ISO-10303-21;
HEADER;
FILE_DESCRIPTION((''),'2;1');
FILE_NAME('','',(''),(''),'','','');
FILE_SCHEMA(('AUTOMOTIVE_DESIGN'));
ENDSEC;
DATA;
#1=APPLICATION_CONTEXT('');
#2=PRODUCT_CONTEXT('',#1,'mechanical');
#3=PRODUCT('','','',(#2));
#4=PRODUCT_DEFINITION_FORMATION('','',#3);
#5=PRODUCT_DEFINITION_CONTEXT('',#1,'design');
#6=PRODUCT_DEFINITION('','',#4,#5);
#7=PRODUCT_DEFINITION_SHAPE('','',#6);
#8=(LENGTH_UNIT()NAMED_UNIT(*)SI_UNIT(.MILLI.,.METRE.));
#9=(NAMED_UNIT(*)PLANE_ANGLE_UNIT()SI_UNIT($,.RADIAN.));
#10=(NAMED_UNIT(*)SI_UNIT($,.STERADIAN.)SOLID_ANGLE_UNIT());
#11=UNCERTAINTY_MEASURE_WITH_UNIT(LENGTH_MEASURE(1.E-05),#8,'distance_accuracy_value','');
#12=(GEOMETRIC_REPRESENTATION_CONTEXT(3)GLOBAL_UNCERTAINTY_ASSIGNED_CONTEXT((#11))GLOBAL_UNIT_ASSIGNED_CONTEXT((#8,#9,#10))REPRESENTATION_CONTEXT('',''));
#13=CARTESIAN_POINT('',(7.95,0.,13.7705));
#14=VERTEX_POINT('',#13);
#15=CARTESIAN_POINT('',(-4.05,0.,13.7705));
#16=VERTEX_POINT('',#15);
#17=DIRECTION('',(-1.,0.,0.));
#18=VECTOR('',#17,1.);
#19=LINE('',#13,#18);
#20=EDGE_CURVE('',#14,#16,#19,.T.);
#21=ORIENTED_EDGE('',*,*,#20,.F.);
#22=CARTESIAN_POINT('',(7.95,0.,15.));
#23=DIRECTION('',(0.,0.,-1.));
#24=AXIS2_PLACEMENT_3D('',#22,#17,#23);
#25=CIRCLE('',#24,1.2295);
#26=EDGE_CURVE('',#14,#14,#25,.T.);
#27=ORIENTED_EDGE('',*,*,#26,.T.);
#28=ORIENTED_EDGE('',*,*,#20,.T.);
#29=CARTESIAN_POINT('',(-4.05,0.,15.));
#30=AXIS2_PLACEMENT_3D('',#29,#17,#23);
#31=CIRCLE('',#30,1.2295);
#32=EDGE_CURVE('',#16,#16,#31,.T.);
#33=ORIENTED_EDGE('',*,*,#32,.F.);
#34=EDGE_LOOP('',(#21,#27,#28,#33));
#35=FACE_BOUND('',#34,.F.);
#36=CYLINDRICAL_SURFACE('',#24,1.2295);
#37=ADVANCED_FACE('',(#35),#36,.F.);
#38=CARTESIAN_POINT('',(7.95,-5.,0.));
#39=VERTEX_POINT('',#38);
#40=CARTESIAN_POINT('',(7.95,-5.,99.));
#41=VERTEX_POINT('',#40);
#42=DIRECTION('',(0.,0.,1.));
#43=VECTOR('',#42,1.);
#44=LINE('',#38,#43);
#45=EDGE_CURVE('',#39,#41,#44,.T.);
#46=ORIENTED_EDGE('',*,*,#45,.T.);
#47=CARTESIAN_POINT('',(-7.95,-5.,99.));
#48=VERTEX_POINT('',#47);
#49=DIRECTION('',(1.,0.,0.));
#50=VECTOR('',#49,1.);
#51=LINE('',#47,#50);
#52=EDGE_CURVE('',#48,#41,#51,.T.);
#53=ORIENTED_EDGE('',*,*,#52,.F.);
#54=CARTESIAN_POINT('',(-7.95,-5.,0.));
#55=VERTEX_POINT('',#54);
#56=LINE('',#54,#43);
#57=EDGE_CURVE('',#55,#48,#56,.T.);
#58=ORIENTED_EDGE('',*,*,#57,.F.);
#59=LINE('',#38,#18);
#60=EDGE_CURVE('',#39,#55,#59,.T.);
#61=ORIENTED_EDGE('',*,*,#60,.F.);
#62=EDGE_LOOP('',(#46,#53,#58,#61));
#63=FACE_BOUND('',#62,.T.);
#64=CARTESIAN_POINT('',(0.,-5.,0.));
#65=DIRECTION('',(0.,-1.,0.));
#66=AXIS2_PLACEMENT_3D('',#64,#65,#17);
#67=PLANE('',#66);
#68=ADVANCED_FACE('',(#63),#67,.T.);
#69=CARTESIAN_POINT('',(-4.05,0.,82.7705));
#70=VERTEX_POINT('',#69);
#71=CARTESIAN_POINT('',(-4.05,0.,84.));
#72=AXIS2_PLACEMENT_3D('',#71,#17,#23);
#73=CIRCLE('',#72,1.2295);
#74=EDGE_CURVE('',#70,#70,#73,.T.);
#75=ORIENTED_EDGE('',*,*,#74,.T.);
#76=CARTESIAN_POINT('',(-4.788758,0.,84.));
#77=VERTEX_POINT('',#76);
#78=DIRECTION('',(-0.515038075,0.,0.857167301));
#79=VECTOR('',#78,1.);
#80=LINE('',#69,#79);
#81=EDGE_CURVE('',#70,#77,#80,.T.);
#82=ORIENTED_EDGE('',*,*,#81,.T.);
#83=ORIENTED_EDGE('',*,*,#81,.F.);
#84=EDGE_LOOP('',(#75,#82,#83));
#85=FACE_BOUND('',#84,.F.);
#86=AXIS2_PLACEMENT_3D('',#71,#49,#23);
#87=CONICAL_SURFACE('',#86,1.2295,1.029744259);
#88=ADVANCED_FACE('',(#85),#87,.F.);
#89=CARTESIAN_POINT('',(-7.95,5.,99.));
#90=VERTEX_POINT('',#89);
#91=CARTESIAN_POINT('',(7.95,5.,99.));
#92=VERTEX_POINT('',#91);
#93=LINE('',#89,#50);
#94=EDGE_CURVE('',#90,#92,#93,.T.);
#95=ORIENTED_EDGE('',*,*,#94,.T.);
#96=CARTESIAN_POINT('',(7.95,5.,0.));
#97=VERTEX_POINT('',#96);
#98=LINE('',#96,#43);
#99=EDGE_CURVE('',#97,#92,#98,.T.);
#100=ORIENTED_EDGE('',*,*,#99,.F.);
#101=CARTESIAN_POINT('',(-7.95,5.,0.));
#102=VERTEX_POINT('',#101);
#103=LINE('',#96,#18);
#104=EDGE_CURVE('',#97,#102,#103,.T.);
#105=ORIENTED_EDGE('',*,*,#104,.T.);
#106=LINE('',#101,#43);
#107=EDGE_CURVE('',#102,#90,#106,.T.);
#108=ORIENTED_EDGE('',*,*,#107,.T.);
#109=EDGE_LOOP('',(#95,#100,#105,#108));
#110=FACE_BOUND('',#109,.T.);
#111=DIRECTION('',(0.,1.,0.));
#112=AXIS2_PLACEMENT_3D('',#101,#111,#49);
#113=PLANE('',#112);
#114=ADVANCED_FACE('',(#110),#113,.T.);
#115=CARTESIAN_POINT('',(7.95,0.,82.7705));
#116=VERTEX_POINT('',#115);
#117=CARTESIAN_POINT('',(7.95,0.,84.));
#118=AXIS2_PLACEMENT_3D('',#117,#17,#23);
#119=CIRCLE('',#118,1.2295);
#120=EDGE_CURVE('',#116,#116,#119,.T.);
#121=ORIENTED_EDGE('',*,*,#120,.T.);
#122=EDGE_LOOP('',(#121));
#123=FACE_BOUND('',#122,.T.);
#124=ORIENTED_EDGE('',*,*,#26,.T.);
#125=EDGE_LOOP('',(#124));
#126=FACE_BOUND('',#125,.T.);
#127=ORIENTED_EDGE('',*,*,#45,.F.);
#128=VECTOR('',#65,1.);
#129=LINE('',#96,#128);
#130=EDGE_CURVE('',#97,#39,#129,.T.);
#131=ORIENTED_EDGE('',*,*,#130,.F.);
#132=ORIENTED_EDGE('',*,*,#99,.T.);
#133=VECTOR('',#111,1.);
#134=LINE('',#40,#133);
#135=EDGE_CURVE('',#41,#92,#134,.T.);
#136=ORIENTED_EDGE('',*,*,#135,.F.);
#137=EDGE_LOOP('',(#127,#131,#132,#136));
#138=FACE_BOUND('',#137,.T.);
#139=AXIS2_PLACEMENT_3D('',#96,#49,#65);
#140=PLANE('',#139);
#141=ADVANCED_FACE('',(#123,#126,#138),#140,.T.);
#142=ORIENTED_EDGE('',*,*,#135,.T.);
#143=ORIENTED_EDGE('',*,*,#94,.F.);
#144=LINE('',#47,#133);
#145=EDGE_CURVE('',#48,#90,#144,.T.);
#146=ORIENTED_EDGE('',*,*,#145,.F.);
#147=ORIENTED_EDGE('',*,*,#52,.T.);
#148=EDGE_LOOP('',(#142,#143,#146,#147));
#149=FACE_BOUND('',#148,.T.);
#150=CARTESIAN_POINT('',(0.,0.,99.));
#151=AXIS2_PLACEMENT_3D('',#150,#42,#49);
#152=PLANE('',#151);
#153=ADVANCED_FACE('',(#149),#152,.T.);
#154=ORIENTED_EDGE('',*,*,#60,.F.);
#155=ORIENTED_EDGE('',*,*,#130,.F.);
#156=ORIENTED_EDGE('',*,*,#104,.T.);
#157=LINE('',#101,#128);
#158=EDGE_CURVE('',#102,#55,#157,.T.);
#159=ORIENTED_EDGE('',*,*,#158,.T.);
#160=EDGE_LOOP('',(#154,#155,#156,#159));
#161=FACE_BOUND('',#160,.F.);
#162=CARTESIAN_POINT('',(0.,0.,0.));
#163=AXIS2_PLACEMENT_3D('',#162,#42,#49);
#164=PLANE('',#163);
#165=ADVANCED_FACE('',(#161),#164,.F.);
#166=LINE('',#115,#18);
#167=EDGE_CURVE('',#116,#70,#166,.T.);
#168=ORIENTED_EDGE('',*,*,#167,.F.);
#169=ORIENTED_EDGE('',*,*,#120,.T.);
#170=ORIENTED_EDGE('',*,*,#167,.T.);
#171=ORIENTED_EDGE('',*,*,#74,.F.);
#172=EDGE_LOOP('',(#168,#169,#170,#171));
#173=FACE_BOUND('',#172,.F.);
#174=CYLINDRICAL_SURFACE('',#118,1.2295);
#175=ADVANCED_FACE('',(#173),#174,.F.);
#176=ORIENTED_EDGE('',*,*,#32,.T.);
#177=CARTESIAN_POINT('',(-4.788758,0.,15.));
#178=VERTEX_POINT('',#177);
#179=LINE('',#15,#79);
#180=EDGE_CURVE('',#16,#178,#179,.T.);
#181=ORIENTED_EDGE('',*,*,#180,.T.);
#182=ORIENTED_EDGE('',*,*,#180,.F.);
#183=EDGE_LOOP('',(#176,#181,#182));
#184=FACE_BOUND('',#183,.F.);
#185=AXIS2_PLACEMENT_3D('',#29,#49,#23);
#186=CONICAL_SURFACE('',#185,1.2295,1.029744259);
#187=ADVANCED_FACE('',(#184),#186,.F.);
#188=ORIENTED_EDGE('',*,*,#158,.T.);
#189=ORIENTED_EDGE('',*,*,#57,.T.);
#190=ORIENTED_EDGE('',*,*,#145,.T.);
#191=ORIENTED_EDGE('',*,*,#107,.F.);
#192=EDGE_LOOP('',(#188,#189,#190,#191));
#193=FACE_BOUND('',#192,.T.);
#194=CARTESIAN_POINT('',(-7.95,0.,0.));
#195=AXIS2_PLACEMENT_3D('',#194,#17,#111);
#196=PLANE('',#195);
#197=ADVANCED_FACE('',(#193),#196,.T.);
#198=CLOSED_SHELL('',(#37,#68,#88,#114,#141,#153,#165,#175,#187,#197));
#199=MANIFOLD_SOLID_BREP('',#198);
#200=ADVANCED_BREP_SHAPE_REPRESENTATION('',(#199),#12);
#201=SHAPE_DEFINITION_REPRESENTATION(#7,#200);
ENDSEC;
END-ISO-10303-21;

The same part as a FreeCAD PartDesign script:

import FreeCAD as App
import Part
import Sketcher
Q = App.Units.Quantity

doc = App.newDocument("Part")
body = doc.addObject("PartDesign::Body", "Body")

sketch1 = body.newObject("Sketcher::SketchObject", "Sketch")
sketch1.AttachmentSupport = (doc.getObject("XY_Plane"), [""])
sketch1.MapMode = "FlatFace"
sketch1.addGeometry([
    Part.LineSegment(App.Vector(-8, 5, 0), App.Vector(-8, -5, 0)),
    Part.LineSegment(App.Vector(-8, -5, 0), App.Vector(8, -5, 0)),
    Part.LineSegment(App.Vector(8, -5, 0), App.Vector(8, 5, 0)),
    Part.LineSegment(App.Vector(8, 5, 0), App.Vector(-8, 5, 0)),
], False)
sketch1.addConstraint([
    Sketcher.Constraint("Coincident", 0, 2, 1, 1),
    Sketcher.Constraint("Coincident", 1, 2, 2, 1),
    Sketcher.Constraint("Coincident", 2, 2, 3, 1),
    Sketcher.Constraint("Coincident", 3, 2, 0, 1),
    Sketcher.Constraint("Vertical", 0),
    Sketcher.Constraint("Horizontal", 1),
    Sketcher.Constraint("Vertical", 2),
    Sketcher.Constraint("Horizontal", 3),
    Sketcher.Constraint("Symmetric", 0, 2, 2, 2, -1, 1),
    Sketcher.Constraint("DistanceY", 0, 2, 0, 1, Q("10 mm")),
    Sketcher.Constraint("DistanceX", 1, 1, 1, 2, Q("15.9 mm")),
])
pad1 = body.newObject("PartDesign::Pad", "Pad")
pad1.Profile = sketch1
pad1.Length = 99

sketch2 = body.newObject("Sketcher::SketchObject", "Sketch001")
sketch2.AttachmentSupport = (doc.getObject("YZ_Plane"), [""])
sketch2.MapMode = "FlatFace"
sketch2.AttachmentOffset = App.Placement(App.Vector(0, 0, 7.95), App.Rotation())
sketch2.addGeometry([
    Part.Circle(App.Vector(0, 84, 0), App.Vector(0, 0, 1), 1.2),
    Part.Circle(App.Vector(0, 15, 0), App.Vector(0, 0, 1), 1.2),
], False)
sketch2.addConstraint([
    Sketcher.Constraint("Equal", 0, 1),
    Sketcher.Constraint("PointOnObject", 0, 3, -2),
    Sketcher.Constraint("PointOnObject", 1, 3, -2),
    Sketcher.Constraint("Diameter", 0, Q("2.459 mm")),
    Sketcher.Constraint("DistanceY", -1, 1, 0, 3, Q("84 mm")),
    Sketcher.Constraint("DistanceY", -1, 1, 1, 3, Q("15 mm")),
])
doc.recompute()
hole = body.newObject("PartDesign::Hole", "Hole")
hole.Profile = sketch2
hole.ThreadType = "None"
hole.Diameter = 2.459
hole.DepthType = "Dimension"
hole.Depth = 12
hole.DrillPoint = "Angled"
hole.DrillPointAngle = 118

doc.recompute()
